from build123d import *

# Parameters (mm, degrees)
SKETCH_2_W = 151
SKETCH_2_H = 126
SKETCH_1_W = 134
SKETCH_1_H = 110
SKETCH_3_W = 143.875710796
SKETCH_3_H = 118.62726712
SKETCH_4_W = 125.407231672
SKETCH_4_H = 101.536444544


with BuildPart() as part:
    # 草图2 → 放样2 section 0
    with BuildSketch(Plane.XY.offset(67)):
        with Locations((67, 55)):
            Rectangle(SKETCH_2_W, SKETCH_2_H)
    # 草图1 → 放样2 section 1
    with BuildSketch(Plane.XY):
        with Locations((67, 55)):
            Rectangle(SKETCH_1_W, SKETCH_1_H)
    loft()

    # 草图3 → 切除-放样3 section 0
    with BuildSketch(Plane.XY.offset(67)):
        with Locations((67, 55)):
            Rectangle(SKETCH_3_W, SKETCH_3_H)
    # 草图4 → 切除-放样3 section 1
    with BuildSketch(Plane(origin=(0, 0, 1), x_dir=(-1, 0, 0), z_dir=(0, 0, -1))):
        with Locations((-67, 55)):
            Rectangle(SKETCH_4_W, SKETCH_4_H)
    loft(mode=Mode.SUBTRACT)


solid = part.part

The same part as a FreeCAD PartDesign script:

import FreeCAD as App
import Part
import Sketcher

V = App.Vector


def add_polygon(sketch, points):
    """Adds a closed chain of lines whose ends are joined by coincident constraints."""
    first, n = sketch.GeometryCount, len(points)
    for a, b in zip(points, points[1:] + points[:1]):
        sketch.addGeometry(Part.LineSegment(App.Vector(*a, 0), App.Vector(*b, 0)), False)
    for i in range(n):
        sketch.addConstraint(Sketcher.Constraint("Coincident", first + i, 2, first + (i + 1) % n, 1))

doc = App.newDocument("Part")
body = doc.addObject("PartDesign::Body", "Body")

# Sketch on XY plane
sketch1 = body.newObject("Sketcher::SketchObject", "Sketch")
sketch1.AttachmentSupport = (doc.getObject("XY_Plane"), [""])
sketch1.MapMode = "FlatFace"
sketch1.AttachmentOffset = App.Placement(V(0, 0, 67), App.Rotation())
add_polygon(sketch1, [(-8.5, 118), (-8.5, -8), (142.5, -8), (142.5, 118)])  # lines 0-3
sketch1.addConstraint(Sketcher.Constraint("Vertical", 0))
sketch1.addConstraint(Sketcher.Constraint("Horizontal", 1))
sketch1.addConstraint(Sketcher.Constraint("Vertical", 2))
sketch1.addConstraint(Sketcher.Constraint("Horizontal", 3))
sketch1.addConstraint(Sketcher.Constraint("DistanceX", 1, 1, 1, 2, 151.0))
sketch1.addConstraint(Sketcher.Constraint("DistanceY", 0, 2, 0, 1, 126.0))
sketch1.addConstraint(Sketcher.Constraint("DistanceY", 0, 2, -1, 1, 8.0))
sketch1.addConstraint(Sketcher.Constraint("DistanceX", 0, 2, -1, 1, 8.5))

# Sketch on XY plane
sketch2 = body.newObject("Sketcher::SketchObject", "Sketch001")
sketch2.AttachmentSupport = (doc.getObject("XY_Plane"), [""])
sketch2.MapMode = "FlatFace"
add_polygon(sketch2, [(0, 110), (0, 0), (134, 0), (134, 110)])  # lines 0-3
sketch2.addConstraint(Sketcher.Constraint("Vertical", 0))
sketch2.addConstraint(Sketcher.Constraint("Horizontal", 1))
sketch2.addConstraint(Sketcher.Constraint("Vertical", 2))
sketch2.addConstraint(Sketcher.Constraint("Horizontal", 3))
sketch2.addConstraint(Sketcher.Constraint("Coincident", 0, 2, -1, 1))
sketch2.addConstraint(Sketcher.Constraint("DistanceX", 1, 1, 1, 2, 134.0))
sketch2.addConstraint(Sketcher.Constraint("DistanceY", 0, 2, 0, 1, 110.0))

additiveloft = body.newObject("PartDesign::AdditiveLoft", "AdditiveLoft")
additiveloft.Profile = sketch1
additiveloft.Sections = [sketch2]

# Sketch on XY plane
sketch3 = body.newObject("Sketcher::SketchObject", "Sketch002")
sketch3.AttachmentSupport = (doc.getObject("XY_Plane"), [""])
sketch3.MapMode = "FlatFace"
sketch3.AttachmentOffset = App.Placement(V(0, 0, 67), App.Rotation())
add_polygon(sketch3, [(-4.937855, 114.313634), (-4.937855, -4.313634), (138.937855, -4.313634), (138.937855, 114.313634)])  # lines 0-3
sketch3.addConstraint(Sketcher.Constraint("Vertical", 0))
sketch3.addConstraint(Sketcher.Constraint("Horizontal", 1))
sketch3.addConstraint(Sketcher.Constraint("Vertical", 2))
sketch3.addConstraint(Sketcher.Constraint("Horizontal", 3))
sketch3.addConstraint(Sketcher.Constraint("DistanceX", 1, 1, 1, 2, 143.875711))
sketch3.addConstraint(Sketcher.Constraint("DistanceY", 0, 2, 0, 1, 118.627267))
sketch3.addConstraint(Sketcher.Constraint("DistanceX", 0, 2, -1, 1, 4.937855))
sketch3.addConstraint(Sketcher.Constraint("DistanceY", 0, 2, -1, 1, 4.313634))

# Sketch on XY plane
sketch4 = body.newObject("Sketcher::SketchObject", "Sketch003")
sketch4.AttachmentSupport = (doc.getObject("XY_Plane"), [""])
sketch4.MapMode = "FlatFace"
sketch4.AttachmentOffset = App.Placement(V(0, 0, 1), App.Rotation())
add_polygon(sketch4, [(129.703616, 105.768222), (129.703616, 4.231778), (4.296384, 4.231778), (4.296384, 105.768222)])  # lines 0-3
sketch4.addConstraint(Sketcher.Constraint("Vertical", 0))
sketch4.addConstraint(Sketcher.Constraint("Horizontal", 1))
sketch4.addConstraint(Sketcher.Constraint("Vertical", 2))
sketch4.addConstraint(Sketcher.Constraint("Horizontal", 3))
sketch4.addConstraint(Sketcher.Constraint("DistanceX", 1, 2, 1, 1, 125.407232))
sketch4.addConstraint(Sketcher.Constraint("DistanceY", 0, 2, 0, 1, 101.536445))
sketch4.addConstraint(Sketcher.Constraint("DistanceX", -1, 1, 0, 2, 129.703616))
sketch4.addConstraint(Sketcher.Constraint("DistanceY", -1, 1, 0, 2, 4.231778))

subtractiveloft = body.newObject("PartDesign::SubtractiveLoft", "SubtractiveLoft")
subtractiveloft.Profile = sketch3
subtractiveloft.Sections = [sketch4]

doc.recompute()
